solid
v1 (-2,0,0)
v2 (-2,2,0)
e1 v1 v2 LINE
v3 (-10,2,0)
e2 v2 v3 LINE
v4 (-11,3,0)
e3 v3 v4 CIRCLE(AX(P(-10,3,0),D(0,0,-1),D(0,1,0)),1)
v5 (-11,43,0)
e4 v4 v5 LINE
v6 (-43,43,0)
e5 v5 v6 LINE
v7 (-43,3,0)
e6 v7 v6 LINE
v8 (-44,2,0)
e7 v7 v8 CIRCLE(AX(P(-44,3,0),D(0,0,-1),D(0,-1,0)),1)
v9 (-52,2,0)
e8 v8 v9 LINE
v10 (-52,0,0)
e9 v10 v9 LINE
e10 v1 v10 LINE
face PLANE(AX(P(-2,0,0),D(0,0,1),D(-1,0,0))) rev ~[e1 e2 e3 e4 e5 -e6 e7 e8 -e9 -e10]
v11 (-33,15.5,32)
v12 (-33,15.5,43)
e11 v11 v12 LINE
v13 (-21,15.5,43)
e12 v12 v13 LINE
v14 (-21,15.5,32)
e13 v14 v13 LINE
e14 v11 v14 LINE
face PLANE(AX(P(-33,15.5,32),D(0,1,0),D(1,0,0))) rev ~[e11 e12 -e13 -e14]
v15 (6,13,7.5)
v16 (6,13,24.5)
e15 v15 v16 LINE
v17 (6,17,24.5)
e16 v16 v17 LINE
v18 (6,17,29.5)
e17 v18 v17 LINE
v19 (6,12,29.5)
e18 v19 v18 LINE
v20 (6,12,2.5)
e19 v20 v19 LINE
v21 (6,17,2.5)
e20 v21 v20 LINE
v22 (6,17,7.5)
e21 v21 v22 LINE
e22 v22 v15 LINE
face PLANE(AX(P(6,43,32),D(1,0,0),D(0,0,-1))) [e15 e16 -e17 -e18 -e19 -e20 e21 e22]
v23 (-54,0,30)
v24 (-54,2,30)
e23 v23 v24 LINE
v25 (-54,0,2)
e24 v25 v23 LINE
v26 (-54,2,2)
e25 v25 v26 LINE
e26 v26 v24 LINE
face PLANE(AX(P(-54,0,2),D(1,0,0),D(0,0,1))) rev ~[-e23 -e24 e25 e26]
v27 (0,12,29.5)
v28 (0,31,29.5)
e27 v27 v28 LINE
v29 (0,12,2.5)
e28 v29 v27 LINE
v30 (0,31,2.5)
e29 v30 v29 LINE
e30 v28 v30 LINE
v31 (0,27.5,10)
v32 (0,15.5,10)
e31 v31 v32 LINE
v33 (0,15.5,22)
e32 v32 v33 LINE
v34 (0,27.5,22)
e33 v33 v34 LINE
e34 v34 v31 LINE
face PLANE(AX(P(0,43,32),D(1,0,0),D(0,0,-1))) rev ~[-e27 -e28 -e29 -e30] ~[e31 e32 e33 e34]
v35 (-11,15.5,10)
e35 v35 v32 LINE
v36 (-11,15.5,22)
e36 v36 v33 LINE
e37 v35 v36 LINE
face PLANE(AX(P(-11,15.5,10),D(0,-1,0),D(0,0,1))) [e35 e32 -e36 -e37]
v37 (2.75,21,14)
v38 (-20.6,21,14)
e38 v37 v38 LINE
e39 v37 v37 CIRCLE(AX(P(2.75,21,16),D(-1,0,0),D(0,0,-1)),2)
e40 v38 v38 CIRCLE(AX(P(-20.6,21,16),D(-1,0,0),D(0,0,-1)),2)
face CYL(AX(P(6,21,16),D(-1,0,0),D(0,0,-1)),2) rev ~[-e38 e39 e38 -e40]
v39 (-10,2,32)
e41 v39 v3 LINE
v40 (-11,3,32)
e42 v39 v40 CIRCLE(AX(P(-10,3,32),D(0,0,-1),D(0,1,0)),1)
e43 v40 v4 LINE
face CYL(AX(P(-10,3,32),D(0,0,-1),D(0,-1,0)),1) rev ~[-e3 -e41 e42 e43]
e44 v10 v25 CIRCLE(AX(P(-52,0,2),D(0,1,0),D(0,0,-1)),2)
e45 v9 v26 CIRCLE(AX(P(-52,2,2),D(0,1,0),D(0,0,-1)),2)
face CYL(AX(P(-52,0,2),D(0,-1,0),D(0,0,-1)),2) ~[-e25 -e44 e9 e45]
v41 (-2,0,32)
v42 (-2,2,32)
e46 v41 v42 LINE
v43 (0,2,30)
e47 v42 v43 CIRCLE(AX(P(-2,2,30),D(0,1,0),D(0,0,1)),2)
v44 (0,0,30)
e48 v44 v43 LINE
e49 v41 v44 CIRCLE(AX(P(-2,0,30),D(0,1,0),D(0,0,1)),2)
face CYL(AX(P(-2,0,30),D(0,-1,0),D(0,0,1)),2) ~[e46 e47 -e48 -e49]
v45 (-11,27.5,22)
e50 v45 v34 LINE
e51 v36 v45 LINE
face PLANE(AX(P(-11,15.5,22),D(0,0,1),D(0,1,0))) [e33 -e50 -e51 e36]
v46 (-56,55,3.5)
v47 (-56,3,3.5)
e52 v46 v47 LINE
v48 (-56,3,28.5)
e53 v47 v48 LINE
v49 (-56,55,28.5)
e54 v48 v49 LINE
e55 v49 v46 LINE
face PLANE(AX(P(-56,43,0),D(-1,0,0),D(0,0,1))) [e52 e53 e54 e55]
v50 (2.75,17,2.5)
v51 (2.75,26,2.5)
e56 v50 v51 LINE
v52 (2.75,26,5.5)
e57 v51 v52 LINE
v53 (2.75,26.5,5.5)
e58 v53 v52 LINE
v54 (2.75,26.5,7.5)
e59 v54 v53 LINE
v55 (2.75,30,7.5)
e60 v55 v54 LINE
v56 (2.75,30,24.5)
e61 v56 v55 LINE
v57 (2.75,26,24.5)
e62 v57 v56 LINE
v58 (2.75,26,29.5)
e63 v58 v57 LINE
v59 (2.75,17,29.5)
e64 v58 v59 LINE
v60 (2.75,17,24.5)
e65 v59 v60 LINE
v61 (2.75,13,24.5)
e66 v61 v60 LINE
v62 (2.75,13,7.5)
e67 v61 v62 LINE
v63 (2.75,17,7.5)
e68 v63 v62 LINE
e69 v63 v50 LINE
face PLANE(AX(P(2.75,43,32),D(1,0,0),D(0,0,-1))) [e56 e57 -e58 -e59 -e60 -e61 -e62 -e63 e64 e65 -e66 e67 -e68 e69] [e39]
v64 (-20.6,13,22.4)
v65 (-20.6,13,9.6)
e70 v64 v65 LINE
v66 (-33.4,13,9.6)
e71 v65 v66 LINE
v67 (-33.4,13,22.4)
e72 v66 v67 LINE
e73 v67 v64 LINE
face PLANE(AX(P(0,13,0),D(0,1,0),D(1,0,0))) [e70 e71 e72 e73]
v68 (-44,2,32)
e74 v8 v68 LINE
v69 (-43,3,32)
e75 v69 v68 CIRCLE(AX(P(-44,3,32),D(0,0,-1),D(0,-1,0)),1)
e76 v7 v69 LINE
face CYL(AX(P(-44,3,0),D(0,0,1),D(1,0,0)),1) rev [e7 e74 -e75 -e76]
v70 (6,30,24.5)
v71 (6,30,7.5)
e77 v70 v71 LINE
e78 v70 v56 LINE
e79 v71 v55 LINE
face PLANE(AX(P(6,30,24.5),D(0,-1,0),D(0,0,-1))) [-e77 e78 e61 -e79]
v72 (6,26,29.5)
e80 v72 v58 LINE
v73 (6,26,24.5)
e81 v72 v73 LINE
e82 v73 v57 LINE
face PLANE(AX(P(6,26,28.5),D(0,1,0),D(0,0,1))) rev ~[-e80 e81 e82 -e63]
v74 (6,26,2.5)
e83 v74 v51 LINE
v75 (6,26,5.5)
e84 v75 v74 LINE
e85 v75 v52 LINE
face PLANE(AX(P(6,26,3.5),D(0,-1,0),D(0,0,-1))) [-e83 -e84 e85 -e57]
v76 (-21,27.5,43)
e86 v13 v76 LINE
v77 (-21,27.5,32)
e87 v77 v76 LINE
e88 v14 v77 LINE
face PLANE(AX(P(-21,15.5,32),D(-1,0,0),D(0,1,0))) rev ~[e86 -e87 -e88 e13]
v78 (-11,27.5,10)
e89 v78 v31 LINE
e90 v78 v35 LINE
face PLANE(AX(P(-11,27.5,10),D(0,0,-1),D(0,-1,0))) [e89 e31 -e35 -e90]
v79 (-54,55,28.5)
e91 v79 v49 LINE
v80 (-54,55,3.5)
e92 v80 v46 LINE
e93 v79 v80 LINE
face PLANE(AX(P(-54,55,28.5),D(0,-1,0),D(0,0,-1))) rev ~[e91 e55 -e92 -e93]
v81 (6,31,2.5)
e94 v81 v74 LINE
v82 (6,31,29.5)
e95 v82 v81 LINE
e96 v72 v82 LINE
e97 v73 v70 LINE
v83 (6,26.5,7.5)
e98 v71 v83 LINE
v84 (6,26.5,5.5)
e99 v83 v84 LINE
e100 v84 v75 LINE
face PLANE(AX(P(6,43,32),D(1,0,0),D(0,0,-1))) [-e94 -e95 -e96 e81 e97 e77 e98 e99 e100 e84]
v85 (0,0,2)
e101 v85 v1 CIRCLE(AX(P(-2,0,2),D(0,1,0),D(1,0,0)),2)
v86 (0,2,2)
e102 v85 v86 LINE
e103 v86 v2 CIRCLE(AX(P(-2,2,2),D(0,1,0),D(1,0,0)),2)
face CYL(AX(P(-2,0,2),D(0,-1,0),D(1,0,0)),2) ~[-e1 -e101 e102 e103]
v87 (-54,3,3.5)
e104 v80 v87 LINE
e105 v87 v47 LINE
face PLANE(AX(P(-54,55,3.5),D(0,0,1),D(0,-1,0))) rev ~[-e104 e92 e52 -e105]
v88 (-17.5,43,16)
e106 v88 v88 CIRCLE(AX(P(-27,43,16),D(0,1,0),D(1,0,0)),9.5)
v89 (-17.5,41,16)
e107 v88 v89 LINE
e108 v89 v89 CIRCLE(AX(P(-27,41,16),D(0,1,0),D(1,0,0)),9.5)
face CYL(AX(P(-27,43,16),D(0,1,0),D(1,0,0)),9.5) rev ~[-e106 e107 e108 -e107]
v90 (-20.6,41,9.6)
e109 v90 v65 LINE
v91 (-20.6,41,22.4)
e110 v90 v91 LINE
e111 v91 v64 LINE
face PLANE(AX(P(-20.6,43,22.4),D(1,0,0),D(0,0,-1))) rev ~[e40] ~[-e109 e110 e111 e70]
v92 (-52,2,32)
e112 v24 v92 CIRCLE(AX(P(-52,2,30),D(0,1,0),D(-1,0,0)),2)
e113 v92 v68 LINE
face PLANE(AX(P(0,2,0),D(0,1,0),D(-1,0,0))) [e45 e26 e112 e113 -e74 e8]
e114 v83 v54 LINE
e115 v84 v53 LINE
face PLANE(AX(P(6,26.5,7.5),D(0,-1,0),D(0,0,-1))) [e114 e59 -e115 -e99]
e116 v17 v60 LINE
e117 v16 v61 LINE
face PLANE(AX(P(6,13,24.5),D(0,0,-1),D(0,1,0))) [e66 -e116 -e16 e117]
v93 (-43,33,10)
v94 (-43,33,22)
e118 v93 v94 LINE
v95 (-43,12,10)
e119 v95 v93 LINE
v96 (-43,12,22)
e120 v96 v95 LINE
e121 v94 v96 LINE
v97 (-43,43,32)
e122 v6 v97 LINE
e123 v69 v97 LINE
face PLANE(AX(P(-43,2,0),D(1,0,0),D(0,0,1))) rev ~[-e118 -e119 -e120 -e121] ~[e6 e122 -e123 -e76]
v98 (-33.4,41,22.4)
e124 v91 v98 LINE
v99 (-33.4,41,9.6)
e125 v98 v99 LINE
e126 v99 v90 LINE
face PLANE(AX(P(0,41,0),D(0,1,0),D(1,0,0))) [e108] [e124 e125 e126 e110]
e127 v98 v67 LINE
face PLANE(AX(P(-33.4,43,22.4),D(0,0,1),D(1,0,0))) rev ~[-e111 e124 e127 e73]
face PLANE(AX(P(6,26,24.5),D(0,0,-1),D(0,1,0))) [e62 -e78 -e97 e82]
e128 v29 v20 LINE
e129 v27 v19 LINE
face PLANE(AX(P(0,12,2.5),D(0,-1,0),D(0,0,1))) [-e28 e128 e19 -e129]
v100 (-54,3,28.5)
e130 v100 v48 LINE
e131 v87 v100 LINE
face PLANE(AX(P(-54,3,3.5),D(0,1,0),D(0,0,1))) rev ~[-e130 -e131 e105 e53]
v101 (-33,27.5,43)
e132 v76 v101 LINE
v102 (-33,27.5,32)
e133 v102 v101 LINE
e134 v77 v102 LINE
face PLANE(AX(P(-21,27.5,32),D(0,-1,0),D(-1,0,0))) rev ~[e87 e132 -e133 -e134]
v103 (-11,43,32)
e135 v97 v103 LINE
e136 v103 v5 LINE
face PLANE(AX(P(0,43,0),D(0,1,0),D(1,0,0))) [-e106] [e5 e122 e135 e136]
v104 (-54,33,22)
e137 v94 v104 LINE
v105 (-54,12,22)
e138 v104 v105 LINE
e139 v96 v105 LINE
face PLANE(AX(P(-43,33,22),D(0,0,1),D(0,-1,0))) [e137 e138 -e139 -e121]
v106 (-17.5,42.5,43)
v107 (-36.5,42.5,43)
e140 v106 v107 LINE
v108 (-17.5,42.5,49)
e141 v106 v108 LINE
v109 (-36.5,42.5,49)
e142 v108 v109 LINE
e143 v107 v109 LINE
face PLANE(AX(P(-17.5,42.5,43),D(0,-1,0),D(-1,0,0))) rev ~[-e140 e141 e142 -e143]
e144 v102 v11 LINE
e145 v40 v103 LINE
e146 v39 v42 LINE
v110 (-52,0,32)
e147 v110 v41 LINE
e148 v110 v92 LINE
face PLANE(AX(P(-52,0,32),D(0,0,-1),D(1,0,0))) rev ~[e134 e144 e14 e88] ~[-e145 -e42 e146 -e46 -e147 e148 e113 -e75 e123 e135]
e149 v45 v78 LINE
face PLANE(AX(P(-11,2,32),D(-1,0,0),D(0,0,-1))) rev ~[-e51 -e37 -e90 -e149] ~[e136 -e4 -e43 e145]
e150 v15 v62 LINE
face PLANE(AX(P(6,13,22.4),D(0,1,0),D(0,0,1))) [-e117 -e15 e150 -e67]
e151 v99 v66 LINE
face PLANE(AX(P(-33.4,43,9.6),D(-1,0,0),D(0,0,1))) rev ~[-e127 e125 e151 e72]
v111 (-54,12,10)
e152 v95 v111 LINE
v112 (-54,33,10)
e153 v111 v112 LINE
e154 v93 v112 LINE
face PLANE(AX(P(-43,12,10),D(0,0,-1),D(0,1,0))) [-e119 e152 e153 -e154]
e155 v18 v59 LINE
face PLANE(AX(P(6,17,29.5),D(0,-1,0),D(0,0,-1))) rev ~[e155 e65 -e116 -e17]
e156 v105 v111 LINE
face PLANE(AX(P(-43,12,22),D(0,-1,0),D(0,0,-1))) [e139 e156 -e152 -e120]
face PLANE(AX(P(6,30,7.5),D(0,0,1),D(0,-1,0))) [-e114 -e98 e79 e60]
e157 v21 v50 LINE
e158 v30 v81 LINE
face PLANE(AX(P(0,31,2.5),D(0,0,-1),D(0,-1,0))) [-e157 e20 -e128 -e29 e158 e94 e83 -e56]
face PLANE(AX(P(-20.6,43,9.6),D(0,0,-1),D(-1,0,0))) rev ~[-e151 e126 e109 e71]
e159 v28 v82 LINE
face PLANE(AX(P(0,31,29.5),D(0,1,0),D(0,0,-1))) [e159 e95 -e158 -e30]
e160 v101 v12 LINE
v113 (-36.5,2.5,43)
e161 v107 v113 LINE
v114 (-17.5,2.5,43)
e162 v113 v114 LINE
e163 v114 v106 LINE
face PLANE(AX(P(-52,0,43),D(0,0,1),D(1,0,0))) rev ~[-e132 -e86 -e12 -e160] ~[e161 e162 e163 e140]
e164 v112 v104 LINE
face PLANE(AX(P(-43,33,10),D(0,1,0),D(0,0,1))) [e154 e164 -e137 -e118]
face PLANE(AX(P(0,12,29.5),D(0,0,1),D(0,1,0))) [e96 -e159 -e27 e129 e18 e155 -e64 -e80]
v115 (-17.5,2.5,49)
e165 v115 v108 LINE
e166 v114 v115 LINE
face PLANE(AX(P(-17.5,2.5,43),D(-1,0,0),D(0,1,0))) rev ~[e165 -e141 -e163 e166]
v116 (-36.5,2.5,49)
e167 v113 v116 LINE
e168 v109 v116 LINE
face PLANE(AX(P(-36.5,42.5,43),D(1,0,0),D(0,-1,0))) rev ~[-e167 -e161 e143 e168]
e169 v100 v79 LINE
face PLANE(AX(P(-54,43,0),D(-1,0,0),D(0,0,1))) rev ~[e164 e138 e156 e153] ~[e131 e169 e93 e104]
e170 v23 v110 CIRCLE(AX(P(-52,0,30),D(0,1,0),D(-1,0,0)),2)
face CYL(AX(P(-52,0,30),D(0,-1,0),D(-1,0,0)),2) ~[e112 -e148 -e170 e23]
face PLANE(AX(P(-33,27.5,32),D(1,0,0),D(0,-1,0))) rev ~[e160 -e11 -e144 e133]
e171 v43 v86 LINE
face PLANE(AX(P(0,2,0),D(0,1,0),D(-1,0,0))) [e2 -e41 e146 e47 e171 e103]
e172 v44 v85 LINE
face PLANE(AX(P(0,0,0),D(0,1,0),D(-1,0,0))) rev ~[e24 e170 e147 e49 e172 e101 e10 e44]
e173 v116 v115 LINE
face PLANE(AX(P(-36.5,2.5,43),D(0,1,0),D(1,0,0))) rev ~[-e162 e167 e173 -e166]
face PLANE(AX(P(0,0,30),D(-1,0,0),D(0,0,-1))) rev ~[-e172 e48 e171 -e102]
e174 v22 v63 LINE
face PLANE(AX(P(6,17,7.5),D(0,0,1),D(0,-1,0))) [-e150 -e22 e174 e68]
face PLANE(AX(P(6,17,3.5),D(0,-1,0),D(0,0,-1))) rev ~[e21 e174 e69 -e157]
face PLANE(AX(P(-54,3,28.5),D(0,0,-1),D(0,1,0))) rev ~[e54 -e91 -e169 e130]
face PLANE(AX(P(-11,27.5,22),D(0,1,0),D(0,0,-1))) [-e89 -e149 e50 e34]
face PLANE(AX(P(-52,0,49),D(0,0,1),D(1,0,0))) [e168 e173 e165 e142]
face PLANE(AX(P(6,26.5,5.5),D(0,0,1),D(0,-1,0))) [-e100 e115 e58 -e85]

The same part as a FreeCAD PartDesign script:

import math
import FreeCAD as App
import Part
import Sketcher

V = App.Vector
Q = App.Units.Quantity


def edges_at(feature, points):
    """Names of the edges that pass closest to the given points."""
    edges = feature.Shape.Edges
    near = lambda p: min(range(len(edges)), key=lambda i: edges[i].distToShape(Part.Vertex(*p))[0])
    return sorted({f"Edge{near(p) + 1}" for p in points})

doc = App.newDocument("Part")
body = doc.addObject("PartDesign::Body", "Body")

# Sketch on XZ plane
sketch1 = body.newObject("Sketcher::SketchObject", "Sketch")
sketch1.AttachmentSupport = (doc.getObject("XZ_Plane"), [""])
sketch1.MapMode = "FlatFace"
sketch1.addGeometry(Part.ArcOfCircle(Part.Circle(V(-52, 30, 0), V(0, 0, 1), 2), math.radians(90), math.radians(180)), False)
sketch1.addGeometry(Part.LineSegment(V(-52, 32, 0), V(-2, 32, 0)), False)
sketch1.addGeometry(Part.ArcOfCircle(Part.Circle(V(-2, 30, 0), V(0, 0, 1), 2), math.radians(0), math.radians(90)), False)
sketch1.addGeometry(Part.LineSegment(V(0, 30, 0), V(0, 2, 0)), False)
sketch1.addGeometry(Part.ArcOfCircle(Part.Circle(V(-2, 2, 0), V(0, 0, 1), 2), math.radians(-90), math.radians(0)), False)
sketch1.addGeometry(Part.LineSegment(V(-2, 0, 0), V(-52, 0, 0)), False)
sketch1.addGeometry(Part.ArcOfCircle(Part.Circle(V(-52, 2, 0), V(0, 0, 1), 2), math.radians(180), math.radians(270)), False)
sketch1.addGeometry(Part.LineSegment(V(-54, 2, 0), V(-54, 30, 0)), False)
sketch1.addConstraint(Sketcher.Constraint("Tangent", 0, 1, 1, 1))
sketch1.addConstraint(Sketcher.Constraint("Tangent", 1, 2, 2, 2))
sketch1.addConstraint(Sketcher.Constraint("Tangent", 2, 1, 3, 1))
sketch1.addConstraint(Sketcher.Constraint("Tangent", 3, 2, 4, 2))
sketch1.addConstraint(Sketcher.Constraint("Tangent", 4, 1, 5, 1))
sketch1.addConstraint(Sketcher.Constraint("Tangent", 5, 2, 6, 2))
sketch1.addConstraint(Sketcher.Constraint("Tangent", 6, 1, 7, 1))
sketch1.addConstraint(Sketcher.Constraint("Tangent", 7, 2, 0, 2))
sketch1.addConstraint(Sketcher.Constraint("Horizontal", 1))
sketch1.addConstraint(Sketcher.Constraint("Vertical", 3))
sketch1.addConstraint(Sketcher.Constraint("Horizontal", 5))
sketch1.addConstraint(Sketcher.Constraint("Vertical", 7))
sketch1.addConstraint(Sketcher.Constraint("Equal", 0, 2))
sketch1.addConstraint(Sketcher.Constraint("Equal", 2, 4))
sketch1.addConstraint(Sketcher.Constraint("Equal", 4, 6))
sketch1.addConstraint(Sketcher.Constraint("PointOnObject", 2, 1, -2))
sketch1.addConstraint(Sketcher.Constraint("PointOnObject", 4, 1, -1))
sketch1.addConstraint(Sketcher.Constraint("Radius", 0, Q("2 mm")))
sketch1.addConstraint(Sketcher.Constraint("DistanceX", 1, 1, 1, 2, Q("50 mm")))
sketch1.addConstraint(Sketcher.Constraint("DistanceY", 3, 2, 3, 1, Q("28 mm")))
pad1 = body.newObject("PartDesign::Pad", "Pad")
pad1.Profile = sketch1
pad1.Length = 2
pad1.Reversed = True

# Sketch on XZ plane
sketch2 = body.newObject("Sketcher::SketchObject", "Sketch001")
sketch2.AttachmentSupport = (doc.getObject("XZ_Plane"), [""])
sketch2.MapMode = "FlatFace"
sketch2.AttachmentOffset = App.Placement(V(0, 0, -2), App.Rotation())
sketch2.addGeometry(Part.LineSegment(V(-11, 32, 0), V(-11, 0, 0)), False)
sketch2.addGeometry(Part.LineSegment(V(-11, 0, 0), V(-43, 0, 0)), False)
sketch2.addGeometry(Part.LineSegment(V(-43, 0, 0), V(-43, 32, 0)), False)
sketch2.addGeometry(Part.LineSegment(V(-43, 32, 0), V(-11, 32, 0)), False)
sketch2.addConstraint(Sketcher.Constraint("Coincident", 0, 2, 1, 1))
sketch2.addConstraint(Sketcher.Constraint("Coincident", 1, 2, 2, 1))
sketch2.addConstraint(Sketcher.Constraint("Coincident", 2, 2, 3, 1))
sketch2.addConstraint(Sketcher.Constraint("Coincident", 3, 2, 0, 1))
sketch2.addConstraint(Sketcher.Constraint("Vertical", 0))
sketch2.addConstraint(Sketcher.Constraint("Horizontal", 1))
sketch2.addConstraint(Sketcher.Constraint("Vertical", 2))
sketch2.addConstraint(Sketcher.Constraint("Horizontal", 3))
sketch2.addConstraint(Sketcher.Constraint("PointOnObject", 0, 2, -1))
sketch2.addConstraint(Sketcher.Constraint("Equal", 3, 0))
sketch2.addConstraint(Sketcher.Constraint("DistanceX", 1, 2, 1, 1, Q("32 mm")))
sketch2.addConstraint(Sketcher.Constraint("DistanceX", 0, 2, -1, 1, Q("11 mm")))
pad2 = body.newObject("PartDesign::Pad", "Pad001")
pad2.Profile = sketch2
pad2.Length = 41
pad2.Reversed = True
doc.recompute()

fillet = body.newObject("PartDesign::Fillet", "Fillet")
fillet.Base = (pad2, edges_at(pad2, [(-11, 2, 16)]))
fillet.Radius = 1
doc.recompute()

fillet2 = body.newObject("PartDesign::Fillet", "Fillet001")
fillet2.Base = (fillet, edges_at(fillet, [(-43, 2, 16)]))
fillet2.Radius = 1

# Sketch on XZ plane
sketch3 = body.newObject("Sketcher::SketchObject", "Sketch002")
sketch3.AttachmentSupport = (doc.getObject("XZ_Plane"), [""])
sketch3.MapMode = "FlatFace"
sketch3.AttachmentOffset = App.Placement(V(0, 0, -43), App.Rotation())
sketch3.addGeometry(Part.Circle(V(-27, 16, 0), V(0, 0, 1), 10), False)
sketch3.addConstraint(Sketcher.Constraint("Diameter", 0, Q("19 mm")))
sketch3.addConstraint(Sketcher.Constraint("DistanceX", 0, 3, -1, 1, Q("27 mm")))
sketch3.addConstraint(Sketcher.Constraint("DistanceY", -1, 1, 0, 3, Q("16 mm")))
pocket1 = body.newObject("PartDesign::Pocket", "Pocket")
pocket1.Profile = sketch3
pocket1.Length = 2

# Sketch on XZ plane
sketch4 = body.newObject("Sketcher::SketchObject", "Sketch003")
sketch4.AttachmentSupport = (doc.getObject("XZ_Plane"), [""])
sketch4.MapMode = "FlatFace"
sketch4.AttachmentOffset = App.Placement(V(0, 0, -43), App.Rotation())
sketch4.addGeometry(Part.LineSegment(V(-21, 22, 0), V(-21, 10, 0)), False)
sketch4.addGeometry(Part.LineSegment(V(-21, 10, 0), V(-33, 10, 0)), False)
sketch4.addGeometry(Part.LineSegment(V(-33, 10, 0), V(-33, 22, 0)), False)
sketch4.addGeometry(Part.LineSegment(V(-33, 22, 0), V(-21, 22, 0)), False)
sketch4.addConstraint(Sketcher.Constraint("Coincident", 0, 2, 1, 1))
sketch4.addConstraint(Sketcher.Constraint("Coincident", 1, 2, 2, 1))
sketch4.addConstraint(Sketcher.Constraint("Coincident", 2, 2, 3, 1))
sketch4.addConstraint(Sketcher.Constraint("Coincident", 3, 2, 0, 1))
sketch4.addConstraint(Sketcher.Constraint("Vertical", 0))
sketch4.addConstraint(Sketcher.Constraint("Horizontal", 1))
sketch4.addConstraint(Sketcher.Constraint("Vertical", 2))
sketch4.addConstraint(Sketcher.Constraint("Horizontal", 3))
sketch4.addConstraint(Sketcher.Constraint("Equal", 3, 0))
sketch4.addConstraint(Sketcher.Constraint("DistanceX", 1, 2, 1, 1, Q("12.8 mm")))
sketch4.addConstraint(Sketcher.Constraint("DistanceX", 0, 2, -1, 1, Q("20.6 mm")))
sketch4.addConstraint(Sketcher.Constraint("DistanceY", -1, 1, 0, 2, Q("9.6 mm")))
pocket2 = body.newObject("PartDesign::Pocket", "Pocket001")
pocket2.Profile = sketch4
pocket2.Length = 30
pocket2.Reversed = True

# Sketch on XZ plane
sketch5 = body.newObject("Sketcher::SketchObject", "Sketch004")
sketch5.AttachmentSupport = (doc.getObject("XZ_Plane"), [""])
sketch5.MapMode = "FlatFace"
sketch5.AttachmentOffset = App.Placement(V(0, 0, -43), App.Rotation())
sketch5.addGeometry(Part.Circle(V(-27, 16, 0), V(0, 0, 1), 10), False)
sketch5.addConstraint(Sketcher.Constraint("Diameter", 0, Q("19 mm")))
sketch5.addConstraint(Sketcher.Constraint("DistanceX", 0, 3, -1, 1, Q("27 mm")))
sketch5.addConstraint(Sketcher.Constraint("DistanceY", -1, 1, 0, 3, Q("16 mm")))
pocket3 = body.newObject("PartDesign::Pocket", "Pocket002")
pocket3.Profile = sketch5
pocket3.Length = 2
pocket3.Reversed = True

# Sketch on YZ plane
sketch6 = body.newObject("Sketcher::SketchObject", "Sketch005")
sketch6.AttachmentSupport = (doc.getObject("YZ_Plane"), [""])
sketch6.MapMode = "FlatFace"
sketch6.AttachmentOffset = App.Placement(V(0, 0, -11), App.Rotation())
sketch6.addGeometry(Part.LineSegment(V(28, 10, 0), V(28, 22, 0)), False)
sketch6.addGeometry(Part.LineSegment(V(28, 22, 0), V(16, 22, 0)), False)
sketch6.addGeometry(Part.LineSegment(V(16, 22, 0), V(16, 10, 0)), False)
sketch6.addGeometry(Part.LineSegment(V(16, 10, 0), V(28, 10, 0)), False)
sketch6.addConstraint(Sketcher.Constraint("Coincident", 0, 2, 1, 1))
sketch6.addConstraint(Sketcher.Constraint("Coincident", 1, 2, 2, 1))
sketch6.addConstraint(Sketcher.Constraint("Coincident", 2, 2, 3, 1))
sketch6.addConstraint(Sketcher.Constraint("Coincident", 3, 2, 0, 1))
sketch6.addConstraint(Sketcher.Constraint("Vertical", 0))
sketch6.addConstraint(Sketcher.Constraint("Horizontal", 1))
sketch6.addConstraint(Sketcher.Constraint("Vertical", 2))
sketch6.addConstraint(Sketcher.Constraint("Horizontal", 3))
sketch6.addConstraint(Sketcher.Constraint("Equal", 3, 0))
sketch6.addConstraint(Sketcher.Constraint("DistanceX", 1, 2, 1, 1, Q("12 mm")))
sketch6.addConstraint(Sketcher.Constraint("DistanceY", -1, 1, 0, 2, Q("22 mm")))
sketch6.addConstraint(Sketcher.Constraint("DistanceX", -1, 1, 0, 2, Q("27.5 mm")))
pad3 = body.newObject("PartDesign::Pad", "Pad002")
pad3.Profile = sketch6
pad3.Length = 11

# Sketch on XY plane
sketch7 = body.newObject("Sketcher::SketchObject", "Sketch006")
sketch7.AttachmentSupport = (doc.getObject("XY_Plane"), [""])
sketch7.MapMode = "FlatFace"
sketch7.AttachmentOffset = App.Placement(V(0, 0, 32), App.Rotation())
sketch7.addGeometry(Part.LineSegment(V(-33, 28, 0), V(-33, 16, 0)), False)
sketch7.addGeometry(Part.LineSegment(V(-33, 16, 0), V(-21, 16, 0)), False)
sketch7.addGeometry(Part.LineSegment(V(-21, 16, 0), V(-21, 28, 0)), False)
sketch7.addGeometry(Part.LineSegment(V(-21, 28, 0), V(-33, 28, 0)), False)
sketch7.addConstraint(Sketcher.Constraint("Coincident", 0, 2, 1, 1))
sketch7.addConstraint(Sketcher.Constraint("Coincident", 1, 2, 2, 1))
sketch7.addConstraint(Sketcher.Constraint("Coincident", 2, 2, 3, 1))
sketch7.addConstraint(Sketcher.Constraint("Coincident", 3, 2, 0, 1))
sketch7.addConstraint(Sketcher.Constraint("Vertical", 0))
sketch7.addConstraint(Sketcher.Constraint("Horizontal", 1))
sketch7.addConstraint(Sketcher.Constraint("Vertical", 2))
sketch7.addConstraint(Sketcher.Constraint("Horizontal", 3))
sketch7.addConstraint(Sketcher.Constraint("Equal", 3, 0))
sketch7.addConstraint(Sketcher.Constraint("DistanceX", 1, 1, 1, 2, Q("12 mm")))
sketch7.addConstraint(Sketcher.Constraint("DistanceX", 0, 2, -1, 1, Q("33 mm")))
sketch7.addConstraint(Sketcher.Constraint("DistanceY", -1, 1, 0, 2, Q("15.5 mm")))
pad4 = body.newObject("PartDesign::Pad", "Pad003")
pad4.Profile = sketch7
pad4.Length = 11

# Sketch on YZ plane
sketch8 = body.newObject("Sketcher::SketchObject", "Sketch007")
sketch8.AttachmentSupport = (doc.getObject("YZ_Plane"), [""])
sketch8.MapMode = "FlatFace"
sketch8.AttachmentOffset = App.Placement(V(0, 0, -43), App.Rotation())
sketch8.addGeometry(Part.LineSegment(V(33, 22, 0), V(33, 10, 0)), False)
sketch8.addGeometry(Part.LineSegment(V(33, 10, 0), V(12, 10, 0)), False)
sketch8.addGeometry(Part.LineSegment(V(12, 10, 0), V(12, 22, 0)), False)
sketch8.addGeometry(Part.LineSegment(V(12, 22, 0), V(33, 22, 0)), False)
sketch8.addConstraint(Sketcher.Constraint("Coincident", 0, 2, 1, 1))
sketch8.addConstraint(Sketcher.Constraint("Coincident", 1, 2, 2, 1))
sketch8.addConstraint(Sketcher.Constraint("Coincident", 2, 2, 3, 1))
sketch8.addConstraint(Sketcher.Constraint("Coincident", 3, 2, 0, 1))
sketch8.addConstraint(Sketcher.Constraint("Vertical", 0))
sketch8.addConstraint(Sketcher.Constraint("Horizontal", 1))
sketch8.addConstraint(Sketcher.Constraint("Vertical", 2))
sketch8.addConstraint(Sketcher.Constraint("Horizontal", 3))
sketch8.addConstraint(Sketcher.Constraint("DistanceX", 1, 2, 1, 1, Q("21 mm")))
sketch8.addConstraint(Sketcher.Constraint("DistanceY", 0, 2, 0, 1, Q("12 mm")))
sketch8.addConstraint(Sketcher.Constraint("DistanceX", -1, 1, 0, 2, Q("33 mm")))
sketch8.addConstraint(Sketcher.Constraint("DistanceY", -1, 1, 0, 2, Q("10 mm")))
pad5 = body.newObject("PartDesign::Pad", "Pad004")
pad5.Profile = sketch8
pad5.Length = 11
pad5.Reversed = True

# Sketch on YZ plane
sketch9 = body.newObject("Sketcher::SketchObject", "Sketch008")
sketch9.AttachmentSupport = (doc.getObject("YZ_Plane"), [""])
sketch9.MapMode = "FlatFace"
sketch9.addGeometry(Part.LineSegment(V(31, 2, 0), V(31, 30, 0)), False)
sketch9.addGeometry(Part.LineSegment(V(31, 30, 0), V(12, 30, 0)), False)
sketch9.addGeometry(Part.LineSegment(V(12, 30, 0), V(12, 2, 0)), False)
sketch9.addGeometry(Part.LineSegment(V(12, 2, 0), V(31, 2, 0)), False)
sketch9.addConstraint(Sketcher.Constraint("Coincident", 0, 2, 1, 1))
sketch9.addConstraint(Sketcher.Constraint("Coincident", 1, 2, 2, 1))
sketch9.addConstraint(Sketcher.Constraint("Coincident", 2, 2, 3, 1))
sketch9.addConstraint(Sketcher.Constraint("Coincident", 3, 2, 0, 1))
sketch9.addConstraint(Sketcher.Constraint("Vertical", 0))
sketch9.addConstraint(Sketcher.Constraint("Horizontal", 1))
sketch9.addConstraint(Sketcher.Constraint("Vertical", 2))
sketch9.addConstraint(Sketcher.Constraint("Horizontal", 3))
sketch9.addConstraint(Sketcher.Constraint("DistanceX", 1, 2, 1, 1, Q("19 mm")))
sketch9.addConstraint(Sketcher.Constraint("DistanceY", 0, 1, 0, 2, Q("27 mm")))
sketch9.addConstraint(Sketcher.Constraint("DistanceX", -1, 1, 0, 2, Q("31 mm")))
sketch9.addConstraint(Sketcher.Constraint("DistanceY", -1, 1, 0, 2, Q("29.5 mm")))
pad6 = body.newObject("PartDesign::Pad", "Pad005")
pad6.Profile = sketch9
pad6.Length = 6

# Sketch on XY plane
sketch10 = body.newObject("Sketcher::SketchObject", "Sketch009")
sketch10.AttachmentSupport = (doc.getObject("XY_Plane"), [""])
sketch10.MapMode = "FlatFace"
sketch10.AttachmentOffset = App.Placement(V(0, 0, 43), App.Rotation())
sketch10.addGeometry(Part.LineSegment(V(-36, 42, 0), V(-36, 2, 0)), False)
sketch10.addGeometry(Part.LineSegment(V(-36, 2, 0), V(-18, 2, 0)), False)
sketch10.addGeometry(Part.LineSegment(V(-18, 2, 0), V(-18, 42, 0)), False)
sketch10.addGeometry(Part.LineSegment(V(-18, 42, 0), V(-36, 42, 0)), False)
sketch10.addConstraint(Sketcher.Constraint("Coincident", 0, 2, 1, 1))
sketch10.addConstraint(Sketcher.Constraint("Coincident", 1, 2, 2, 1))
sketch10.addConstraint(Sketcher.Constraint("Coincident", 2, 2, 3, 1))
sketch10.addConstraint(Sketcher.Constraint("Coincident", 3, 2, 0, 1))
sketch10.addConstraint(Sketcher.Constraint("Vertical", 0))
sketch10.addConstraint(Sketcher.Constraint("Horizontal", 1))
sketch10.addConstraint(Sketcher.Constraint("Vertical", 2))
sketch10.addConstraint(Sketcher.Constraint("Horizontal", 3))
sketch10.addConstraint(Sketcher.Constraint("DistanceX", 1, 1, 1, 2, Q("19 mm")))
sketch10.addConstraint(Sketcher.Constraint("DistanceY", 0, 2, 0, 1, Q("40 mm")))
sketch10.addConstraint(Sketcher.Constraint("DistanceX", 0, 2, -1, 1, Q("36.5 mm")))
sketch10.addConstraint(Sketcher.Constraint("DistanceY", -1, 1, 0, 2, Q("2.5 mm")))
pad7 = body.newObject("PartDesign::Pad", "Pad006")
pad7.Profile = sketch10
pad7.Length = 6

# Sketch on YZ plane
sketch11 = body.newObject("Sketcher::SketchObject", "Sketch010")
sketch11.AttachmentSupport = (doc.getObject("YZ_Plane"), [""])
sketch11.MapMode = "FlatFace"
sketch11.AttachmentOffset = App.Placement(V(0, 0, -54), App.Rotation())
sketch11.addGeometry(Part.LineSegment(V(55, 4, 0), V(3, 4, 0)), False)
sketch11.addGeometry(Part.LineSegment(V(3, 4, 0), V(3, 28, 0)), False)
sketch11.addGeometry(Part.LineSegment(V(3, 28, 0), V(55, 28, 0)), False)
sketch11.addGeometry(Part.LineSegment(V(55, 28, 0), V(55, 4, 0)), False)
sketch11.addConstraint(Sketcher.Constraint("Coincident", 0, 2, 1, 1))
sketch11.addConstraint(Sketcher.Constraint("Coincident", 1, 2, 2, 1))
sketch11.addConstraint(Sketcher.Constraint("Coincident", 2, 2, 3, 1))
sketch11.addConstraint(Sketcher.Constraint("Coincident", 3, 2, 0, 1))
sketch11.addConstraint(Sketcher.Constraint("Horizontal", 0))
sketch11.addConstraint(Sketcher.Constraint("Vertical", 1))
sketch11.addConstraint(Sketcher.Constraint("Horizontal", 2))
sketch11.addConstraint(Sketcher.Constraint("Vertical", 3))
sketch11.addConstraint(Sketcher.Constraint("DistanceX", 0, 2, 0, 1, Q("52 mm")))
sketch11.addConstraint(Sketcher.Constraint("DistanceY", 1, 1, 1, 2, Q("25 mm")))
sketch11.addConstraint(Sketcher.Constraint("DistanceX", -1, 1, 0, 2, Q("3 mm")))
sketch11.addConstraint(Sketcher.Constraint("DistanceY", -1, 1, 0, 2, Q("3.5 mm")))
pad8 = body.newObject("PartDesign::Pad", "Pad007")
pad8.Profile = sketch11
pad8.Length = 2
pad8.Reversed = True

# Sketch on YZ plane
sketch12 = body.newObject("Sketcher::SketchObject", "Sketch011")
sketch12.AttachmentSupport = (doc.getObject("YZ_Plane"), [""])
sketch12.MapMode = "FlatFace"
sketch12.AttachmentOffset = App.Placement(V(0, 0, 6), App.Rotation())
sketch12.addGeometry(Part.Circle(V(21, 16, 0), V(0, 0, 1), 2), False)
sketch12.addConstraint(Sketcher.Constraint("Diameter", 0, Q("4 mm")))
sketch12.addConstraint(Sketcher.Constraint("DistanceX", -1, 1, 0, 3, Q("21 mm")))
sketch12.addConstraint(Sketcher.Constraint("DistanceY", -1, 1, 0, 3, Q("16 mm")))
doc.recompute()
hole = body.newObject("PartDesign::Hole", "Hole")
hole.Profile = sketch12
hole.ThreadType = "None"
hole.Diameter = 4
hole.DepthType = "Dimension"
hole.Depth = 27
hole.DrillPoint = "Angled"
hole.DrillPointAngle = 118

# Sketch on YZ plane
sketch13 = body.newObject("Sketcher::SketchObject", "Sketch012")
sketch13.AttachmentSupport = (doc.getObject("YZ_Plane"), [""])
sketch13.MapMode = "FlatFace"
sketch13.AttachmentOffset = App.Placement(V(0, 0, 6), App.Rotation())
sketch13.addGeometry(Part.LineSegment(V(30, 24.5, 0), V(26, 24.5, 0)), False)
sketch13.addGeometry(Part.LineSegment(V(26, 24.5, 0), V(26, 29.5, 0)), False)
sketch13.addGeometry(Part.LineSegment(V(26, 29.5, 0), V(17, 29.5, 0)), False)
sketch13.addGeometry(Part.LineSegment(V(17, 29.5, 0), V(17, 24.5, 0)), False)
sketch13.addGeometry(Part.LineSegment(V(17, 24.5, 0), V(13, 24.5, 0)), False)
sketch13.addGeometry(Part.LineSegment(V(13, 24.5, 0), V(13, 7.5, 0)), False)
sketch13.addGeometry(Part.LineSegment(V(13, 7.5, 0), V(17, 7.5, 0)), False)
sketch13.addGeometry(Part.LineSegment(V(17, 7.5, 0), V(17, 2.5, 0)), False)
sketch13.addGeometry(Part.LineSegment(V(17, 2.5, 0), V(26, 2.5, 0)), False)
sketch13.addGeometry(Part.LineSegment(V(26, 2.5, 0), V(26, 5.5, 0)), False)
sketch13.addGeometry(Part.LineSegment(V(26, 5.5, 0), V(26.5, 5.5, 0)), False)
sketch13.addGeometry(Part.LineSegment(V(26.5, 5.5, 0), V(26.5, 7.5, 0)), False)
sketch13.addGeometry(Part.LineSegment(V(26.5, 7.5, 0), V(30, 7.5, 0)), False)
sketch13.addGeometry(Part.LineSegment(V(30, 7.5, 0), V(30, 24.5, 0)), False)
sketch13.addConstraint(Sketcher.Constraint("Coincident", 0, 2, 1, 1))
sketch13.addConstraint(Sketcher.Constraint("Coincident", 1, 2, 2, 1))
sketch13.addConstraint(Sketcher.Constraint("Coincident", 2, 2, 3, 1))
sketch13.addConstraint(Sketcher.Constraint("Coincident", 3, 2, 4, 1))
sketch13.addConstraint(Sketcher.Constraint("Coincident", 4, 2, 5, 1))
sketch13.addConstraint(Sketcher.Constraint("Coincident", 5, 2, 6, 1))
sketch13.addConstraint(Sketcher.Constraint("Coincident", 6, 2, 7, 1))
sketch13.addConstraint(Sketcher.Constraint("Coincident", 7, 2, 8, 1))
sketch13.addConstraint(Sketcher.Constraint("Coincident", 8, 2, 9, 1))
sketch13.addConstraint(Sketcher.Constraint("Coincident", 9, 2, 10, 1))
sketch13.addConstraint(Sketcher.Constraint("Coincident", 10, 2, 11, 1))
sketch13.addConstraint(Sketcher.Constraint("Coincident", 11, 2, 12, 1))
sketch13.addConstraint(Sketcher.Constraint("Coincident", 12, 2, 13, 1))
sketch13.addConstraint(Sketcher.Constraint("Coincident", 13, 2, 0, 1))
sketch13.addConstraint(Sketcher.Constraint("Horizontal", 0))
sketch13.addConstraint(Sketcher.Constraint("Vertical", 1))
sketch13.addConstraint(Sketcher.Constraint("Horizontal", 2))
sketch13.addConstraint(Sketcher.Constraint("Vertical", 3))
sketch13.addConstraint(Sketcher.Constraint("Horizontal", 4))
sketch13.addConstraint(Sketcher.Constraint("Vertical", 5))
sketch13.addConstraint(Sketcher.Constraint("Horizontal", 6))
sketch13.addConstraint(Sketcher.Constraint("Vertical", 7))
sketch13.addConstraint(Sketcher.Constraint("Horizontal", 8))
sketch13.addConstraint(Sketcher.Constraint("Vertical", 9))
sketch13.addConstraint(Sketcher.Constraint("Horizontal", 10))
sketch13.addConstraint(Sketcher.Constraint("Vertical", 11))
sketch13.addConstraint(Sketcher.Constraint("Horizontal", 12))
sketch13.addConstraint(Sketcher.Constraint("Vertical", 13))
sketch13.addConstraint(Sketcher.Constraint("Horizontal", 0, 2, 3, 2))
sketch13.addConstraint(Sketcher.Constraint("Horizontal", 6, 2, 11, 2))
sketch13.addConstraint(Sketcher.Constraint("Vertical", 3, 2, 6, 2))
sketch13.addConstraint(Sketcher.Constraint("Vertical", 1, 2, 8, 2))
sketch13.addConstraint(Sketcher.Constraint("Equal", 0, 4))
sketch13.addConstraint(Sketcher.Constraint("Equal", 3, 7))
sketch13.addConstraint(Sketcher.Constraint("DistanceX", 0, 2, 0, 1, Q("4 mm")))
sketch13.addConstraint(Sketcher.Constraint("DistanceX", 2, 2, 2, 1, Q("9 mm")))
sketch13.addConstraint(Sketcher.Constraint("DistanceY", 1, 1, 1, 2, Q("5 mm")))
sketch13.addConstraint(Sketcher.Constraint("DistanceY", 5, 2, 5, 1, Q("17 mm")))
sketch13.addConstraint(Sketcher.Constraint("DistanceY", 9, 1, 9, 2, Q("3 mm")))
sketch13.addConstraint(Sketcher.Constraint("DistanceX", 10, 1, 10, 2, Q("0.5 mm")))
sketch13.addConstraint(Sketcher.Constraint("DistanceX", -1, 1, 0, 2, Q("26 mm")))
sketch13.addConstraint(Sketcher.Constraint("DistanceY", -1, 1, 0, 2, Q("24.5 mm")))
pocket4 = body.newObject("PartDesign::Pocket", "Pocket003")
pocket4.Profile = sketch13
pocket4.Length = 3.25

doc.recompute()
